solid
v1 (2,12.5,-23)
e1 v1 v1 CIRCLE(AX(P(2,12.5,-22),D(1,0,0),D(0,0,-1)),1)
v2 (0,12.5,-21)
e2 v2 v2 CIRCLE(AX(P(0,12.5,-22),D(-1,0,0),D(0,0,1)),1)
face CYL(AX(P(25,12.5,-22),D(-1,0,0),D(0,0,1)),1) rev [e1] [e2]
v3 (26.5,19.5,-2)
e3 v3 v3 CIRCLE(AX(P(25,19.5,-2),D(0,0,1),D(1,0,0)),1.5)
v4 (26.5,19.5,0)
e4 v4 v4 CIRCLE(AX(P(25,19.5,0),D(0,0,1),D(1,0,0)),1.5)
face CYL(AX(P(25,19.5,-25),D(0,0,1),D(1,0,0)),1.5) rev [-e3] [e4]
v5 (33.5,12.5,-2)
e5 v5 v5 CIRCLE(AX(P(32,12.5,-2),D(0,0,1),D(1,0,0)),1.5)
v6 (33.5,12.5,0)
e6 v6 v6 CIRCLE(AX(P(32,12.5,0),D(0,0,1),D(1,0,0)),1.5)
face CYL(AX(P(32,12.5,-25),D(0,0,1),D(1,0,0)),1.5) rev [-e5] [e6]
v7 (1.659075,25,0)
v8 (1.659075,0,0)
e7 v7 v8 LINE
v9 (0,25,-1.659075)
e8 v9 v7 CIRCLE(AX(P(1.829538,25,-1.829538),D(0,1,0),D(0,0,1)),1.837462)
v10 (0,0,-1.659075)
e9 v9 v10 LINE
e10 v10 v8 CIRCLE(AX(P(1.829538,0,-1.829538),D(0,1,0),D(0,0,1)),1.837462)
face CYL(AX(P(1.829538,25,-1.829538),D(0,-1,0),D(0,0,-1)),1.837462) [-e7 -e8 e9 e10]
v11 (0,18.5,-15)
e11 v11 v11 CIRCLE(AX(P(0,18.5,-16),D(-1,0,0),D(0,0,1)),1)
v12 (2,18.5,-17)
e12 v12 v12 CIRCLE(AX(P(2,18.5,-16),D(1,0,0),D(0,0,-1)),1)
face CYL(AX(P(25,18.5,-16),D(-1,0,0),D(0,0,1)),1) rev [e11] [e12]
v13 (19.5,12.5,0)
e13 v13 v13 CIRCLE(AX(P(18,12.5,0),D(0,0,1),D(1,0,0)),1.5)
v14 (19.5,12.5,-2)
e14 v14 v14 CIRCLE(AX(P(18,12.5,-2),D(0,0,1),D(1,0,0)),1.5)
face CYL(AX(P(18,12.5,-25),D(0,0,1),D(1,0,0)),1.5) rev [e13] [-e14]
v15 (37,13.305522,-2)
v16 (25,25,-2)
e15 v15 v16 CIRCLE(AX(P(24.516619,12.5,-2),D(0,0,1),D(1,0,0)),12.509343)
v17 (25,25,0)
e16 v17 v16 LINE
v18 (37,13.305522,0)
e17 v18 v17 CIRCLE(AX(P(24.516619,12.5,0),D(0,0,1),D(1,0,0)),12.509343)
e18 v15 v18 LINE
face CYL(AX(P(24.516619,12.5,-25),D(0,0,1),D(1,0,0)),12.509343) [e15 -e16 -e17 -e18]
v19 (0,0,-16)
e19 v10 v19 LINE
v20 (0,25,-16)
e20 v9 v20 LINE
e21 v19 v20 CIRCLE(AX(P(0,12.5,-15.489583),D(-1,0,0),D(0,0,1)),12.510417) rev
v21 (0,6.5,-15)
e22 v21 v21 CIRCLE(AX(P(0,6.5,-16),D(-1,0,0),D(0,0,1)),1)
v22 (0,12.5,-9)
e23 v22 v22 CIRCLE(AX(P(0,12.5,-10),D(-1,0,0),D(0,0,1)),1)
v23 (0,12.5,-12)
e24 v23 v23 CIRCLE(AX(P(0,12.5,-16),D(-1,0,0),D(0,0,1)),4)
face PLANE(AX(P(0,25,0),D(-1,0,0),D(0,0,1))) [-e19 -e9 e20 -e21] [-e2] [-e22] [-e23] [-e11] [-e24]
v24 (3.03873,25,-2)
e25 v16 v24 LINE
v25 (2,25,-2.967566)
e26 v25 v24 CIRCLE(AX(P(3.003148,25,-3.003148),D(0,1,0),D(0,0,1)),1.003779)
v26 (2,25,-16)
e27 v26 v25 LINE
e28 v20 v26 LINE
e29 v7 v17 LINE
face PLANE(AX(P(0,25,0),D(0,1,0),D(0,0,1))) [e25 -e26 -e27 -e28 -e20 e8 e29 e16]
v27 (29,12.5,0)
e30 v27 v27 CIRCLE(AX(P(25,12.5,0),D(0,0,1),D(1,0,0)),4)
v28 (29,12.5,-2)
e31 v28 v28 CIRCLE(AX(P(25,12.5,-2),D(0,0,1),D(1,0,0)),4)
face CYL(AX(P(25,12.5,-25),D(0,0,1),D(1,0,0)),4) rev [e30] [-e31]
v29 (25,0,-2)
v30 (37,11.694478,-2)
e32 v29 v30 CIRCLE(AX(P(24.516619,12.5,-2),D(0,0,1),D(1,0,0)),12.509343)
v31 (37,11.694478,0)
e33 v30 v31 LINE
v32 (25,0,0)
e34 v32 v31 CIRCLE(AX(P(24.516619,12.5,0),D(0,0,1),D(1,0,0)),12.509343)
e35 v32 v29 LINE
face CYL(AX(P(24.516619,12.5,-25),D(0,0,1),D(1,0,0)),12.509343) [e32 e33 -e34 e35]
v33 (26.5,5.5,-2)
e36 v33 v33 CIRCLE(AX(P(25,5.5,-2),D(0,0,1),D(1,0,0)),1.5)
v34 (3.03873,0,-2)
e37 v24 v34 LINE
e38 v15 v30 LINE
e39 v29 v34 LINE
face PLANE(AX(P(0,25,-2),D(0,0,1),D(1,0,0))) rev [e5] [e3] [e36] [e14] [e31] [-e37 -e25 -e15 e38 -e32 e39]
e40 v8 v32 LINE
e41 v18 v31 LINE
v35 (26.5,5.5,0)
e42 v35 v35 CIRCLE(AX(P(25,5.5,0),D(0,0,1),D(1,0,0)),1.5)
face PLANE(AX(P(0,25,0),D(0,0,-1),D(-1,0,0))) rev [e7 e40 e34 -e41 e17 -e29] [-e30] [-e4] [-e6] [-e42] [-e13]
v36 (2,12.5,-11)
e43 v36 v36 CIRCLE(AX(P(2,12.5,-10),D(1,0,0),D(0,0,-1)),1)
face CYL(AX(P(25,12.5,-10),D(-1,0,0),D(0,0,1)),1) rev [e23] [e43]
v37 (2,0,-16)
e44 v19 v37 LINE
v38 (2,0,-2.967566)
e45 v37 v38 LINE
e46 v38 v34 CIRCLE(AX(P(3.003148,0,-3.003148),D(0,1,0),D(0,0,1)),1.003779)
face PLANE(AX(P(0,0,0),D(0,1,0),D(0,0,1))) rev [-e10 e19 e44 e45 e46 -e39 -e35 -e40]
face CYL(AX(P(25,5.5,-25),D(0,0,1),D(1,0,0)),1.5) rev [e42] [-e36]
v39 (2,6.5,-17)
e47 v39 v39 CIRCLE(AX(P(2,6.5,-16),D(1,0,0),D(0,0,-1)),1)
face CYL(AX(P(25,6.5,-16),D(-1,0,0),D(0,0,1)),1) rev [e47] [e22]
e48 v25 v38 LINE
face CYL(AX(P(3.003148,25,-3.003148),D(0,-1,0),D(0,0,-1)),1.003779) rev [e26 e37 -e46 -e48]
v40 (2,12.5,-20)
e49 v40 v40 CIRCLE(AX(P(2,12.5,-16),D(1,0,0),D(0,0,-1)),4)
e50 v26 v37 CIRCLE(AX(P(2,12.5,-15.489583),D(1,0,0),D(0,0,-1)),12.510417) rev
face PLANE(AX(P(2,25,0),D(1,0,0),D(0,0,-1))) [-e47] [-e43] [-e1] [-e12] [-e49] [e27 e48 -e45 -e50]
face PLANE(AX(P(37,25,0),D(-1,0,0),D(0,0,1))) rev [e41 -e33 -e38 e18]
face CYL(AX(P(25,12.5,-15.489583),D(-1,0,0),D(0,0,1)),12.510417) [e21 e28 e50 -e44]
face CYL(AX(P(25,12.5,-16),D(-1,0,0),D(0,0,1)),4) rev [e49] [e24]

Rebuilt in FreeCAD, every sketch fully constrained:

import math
import FreeCAD as App
import Part
import Sketcher

V = App.Vector

doc = App.newDocument("Part")
params = doc.addObject("Spreadsheet::Sheet", "Params")
for row, (alias, value) in enumerate([
    ("sketch1_width", "2 mm"),
    ("pad1_length", "25 mm"),
    ("sketch2_height", "12 mm"),
    ("sketch2_width", "12.5 mm"),
    ("pocket1_length", "25 mm"),
    ("sketch3_width", "12 mm"),
    ("pocket2_length", "25 mm"),
    ("sketch4_diameter", "8 mm"),
    ("sketch4_diameter2", "3 mm"),
    ("pocket3_length", "25 mm"),
    ("sketch5_diameter", "8 mm"),
    ("sketch5_diameter2", "2 mm"),
    ("pocket4_length", "25 mm"),
], start=1):
    params.set(f"A{row}", alias)
    params.set(f"B{row}", "=" + value)
    params.setAlias(f"B{row}", alias)

body = doc.addObject("PartDesign::Body", "Body")

# Sketch on XZ plane
sketch1 = body.newObject("Sketcher::SketchObject", "Sketch")
sketch1.AttachmentSupport = (doc.getObject("XZ_Plane"), [""])
sketch1.MapMode = "FlatFace"
sketch1.addGeometry([
    Part.ArcOfCircle(Part.Circle(V(1.83, -1.83, 0), V(0, 0, 1), 1.84), math.radians(95), math.radians(175)),  # 0
    Part.LineSegment(V(1.66, 0, 0), V(37, 0, 0)),  # 1
    Part.LineSegment(V(37, 0, 0), V(37, -2, 0)),  # 2
    Part.LineSegment(V(37, -2, 0), V(3.04, -2, 0)),  # 3
    Part.ArcOfCircle(Part.Circle(V(3, -3, 0), V(0, 0, 1), 1), math.radians(87.97), math.radians(92.03)),  # 4
    Part.ArcOfCircle(Part.Circle(V(3, -3, 0), V(0, 0, 1), 1), math.radians(92), math.radians(178)),  # 5
    Part.LineSegment(V(2, -2.97, 0), V(2, -28, 0)),  # 6
    Part.LineSegment(V(2, -28, 0), V(0, -28, 0)),  # 7
    Part.LineSegment(V(0, -28, 0), V(0, -1.66, 0)),  # 8
], False)
sketch1.addConstraint([
    Sketcher.Constraint("Coincident", 0, 1, 1, 1),
    Sketcher.Constraint("Coincident", 1, 2, 2, 1),
    Sketcher.Constraint("Coincident", 2, 2, 3, 1),
    Sketcher.Constraint("Coincident", 3, 2, 4, 1),
    Sketcher.Constraint("Tangent", 4, 2, 5, 1),
    Sketcher.Constraint("Coincident", 5, 2, 6, 1),
    Sketcher.Constraint("Coincident", 6, 2, 7, 1),
    Sketcher.Constraint("Coincident", 7, 2, 8, 1),
    Sketcher.Constraint("Coincident", 8, 2, 0, 2),
    Sketcher.Constraint("Horizontal", 1),
    Sketcher.Constraint("Vertical", 2),
    Sketcher.Constraint("Horizontal", 3),
    Sketcher.Constraint("Vertical", 6),
    Sketcher.Constraint("Horizontal", 7),
    Sketcher.Constraint("Vertical", 8),
    Sketcher.Constraint("Equal", 4, 5),
    Sketcher.Constraint("PointOnObject", 0, 1, -1),
    Sketcher.Constraint("PointOnObject", 7, 2, -2),
    Sketcher.Constraint("Horizontal", 3, 2, 4, 2),
    Sketcher.Constraint("Equal", 7, 2),
    Sketcher.Constraint("DistanceX", 7, 2, 7, 1, 2.0),
    Sketcher.Constraint("DistanceX", -1, 1, 1, 2, 37.0),
    Sketcher.Constraint("DistanceY", 6, 2, -1, 1, 28.0),
    Sketcher.Constraint("Radius", 0, 1.837462),
    Sketcher.Constraint("Radius", 5, 1.003779),
    Sketcher.Constraint("DistanceX", 3, 2, 3, 1, 33.96127),
    Sketcher.Constraint("DistanceX", 1, 1, 1, 2, 35.340925),
    Sketcher.Constraint("DistanceY", 6, 2, 6, 1, 25.032434),
    Sketcher.Constraint("DistanceY", 8, 1, 8, 2, 26.340925),
])
sketch1.setExpression("Constraints[20]", "Params.sketch1_width")
pad1 = body.newObject("PartDesign::Pad", "Pad")
pad1.Profile = sketch1
pad1.setExpression("Length", "Params.pad1_length")
pad1.Reversed = True

# Sketch on YZ plane
sketch2 = body.newObject("Sketcher::SketchObject", "Sketch001")
sketch2.AttachmentSupport = (doc.getObject("YZ_Plane"), [""])
sketch2.MapMode = "FlatFace"
sketch2.addGeometry([
    Part.ArcOfCircle(Part.Circle(V(12, -15, 0), V(0, 0, 1), 13), math.radians(-90), math.radians(-2)),  # 0
    Part.LineSegment(V(25, -16, 0), V(25, -28, 0)),  # 1
    Part.LineSegment(V(25, -28, 0), V(12, -28, 0)),  # 2
    Part.ArcOfCircle(Part.Circle(V(12, -15, 0), V(0, 0, 1), 13), math.radians(-178), math.radians(-90)),  # 3
    Part.LineSegment(V(12, -28, 0), V(0, -28, 0)),  # 4
    Part.LineSegment(V(0, -28, 0), V(0, -16, 0)),  # 5
], False)
sketch2.addConstraint([
    Sketcher.Constraint("Coincident", 0, 2, 1, 1),
    Sketcher.Constraint("Coincident", 1, 2, 2, 1),
    Sketcher.Constraint("Tangent", 2, 2, 0, 1),
    Sketcher.Constraint("Tangent", 3, 2, 4, 1),
    Sketcher.Constraint("Coincident", 4, 2, 5, 1),
    Sketcher.Constraint("Coincident", 5, 2, 3, 1),
    Sketcher.Constraint("Vertical", 1),
    Sketcher.Constraint("Horizontal", 2),
    Sketcher.Constraint("Horizontal", 4),
    Sketcher.Constraint("Vertical", 5),
    Sketcher.Constraint("Coincident", 3, 3, 0, 3),
    Sketcher.Constraint("Equal", 0, 3),
    Sketcher.Constraint("PointOnObject", 4, 2, -2),
    Sketcher.Constraint("Horizontal", 0, 2, 5, 2),
    Sketcher.Constraint("DistanceY", 1, 2, 1, 1, 12.0),
    Sketcher.Constraint("DistanceX", 2, 2, 2, 1, 12.5),
    Sketcher.Constraint("DistanceY", 0, 2, -1, 1, 16.0),
])
sketch2.setExpression("Constraints[14]", "Params.sketch2_height")
sketch2.setExpression("Constraints[15]", "Params.sketch2_width")
pocket1 = body.newObject("PartDesign::Pocket", "Pocket")
pocket1.Profile = sketch2
pocket1.setExpression("Length", "Params.pocket1_length")
pocket1.Reversed = True

# Sketch on XY plane
sketch3 = body.newObject("Sketcher::SketchObject", "Sketch002")
sketch3.AttachmentSupport = (doc.getObject("XY_Plane"), [""])
sketch3.MapMode = "FlatFace"
sketch3.addGeometry([
    Part.LineSegment(V(37, 25, 0), V(25, 25, 0)),  # 0
    Part.ArcOfCircle(Part.Circle(V(25, 12, 0), V(0, 0, 1), 13), math.radians(4), math.radians(88)),  # 1
    Part.LineSegment(V(37, 13, 0), V(37, 25, 0)),  # 2
    Part.LineSegment(V(37, 0, 0), V(37, 12, 0)),  # 3
    Part.ArcOfCircle(Part.Circle(V(25, 12, 0), V(0, 0, 1), 13), math.radians(-88), math.radians(-4)),  # 4
    Part.LineSegment(V(25, 0, 0), V(37, 0, 0)),  # 5
], False)
sketch3.addConstraint([
    Sketcher.Constraint("Coincident", 0, 2, 1, 2),
    Sketcher.Constraint("Coincident", 1, 1, 2, 1),
    Sketcher.Constraint("Coincident", 2, 2, 0, 1),
    Sketcher.Constraint("Coincident", 3, 2, 4, 2),
    Sketcher.Constraint("Coincident", 4, 1, 5, 1),
    Sketcher.Constraint("Coincident", 5, 2, 3, 1),
    Sketcher.Constraint("Horizontal", 0),
    Sketcher.Constraint("Vertical", 2),
    Sketcher.Constraint("Vertical", 3),
    Sketcher.Constraint("Horizontal", 5),
    Sketcher.Constraint("Coincident", 4, 3, 1, 3),
    Sketcher.Constraint("Equal", 1, 4),
    Sketcher.Constraint("PointOnObject", 4, 1, -1),
    Sketcher.Constraint("Vertical", 2, 2, 3, 2),
    Sketcher.Constraint("Vertical", 0, 2, 4, 1),
    Sketcher.Constraint("DistanceX", 0, 2, 0, 1, 12.0),
    Sketcher.Constraint("DistanceX", -1, 1, 0, 2, 25.0),
    Sketcher.Constraint("DistanceY", -1, 1, 0, 2, 25.0),
    Sketcher.Constraint("DistanceY", 2, 1, 2, 2, 11.694478),
])
sketch3.setExpression("Constraints[15]", "Params.sketch3_width")
pocket2 = body.newObject("PartDesign::Pocket", "Pocket001")
pocket2.Profile = sketch3
pocket2.setExpression("Length", "Params.pocket2_length")

# Sketch on XY plane
sketch4 = body.newObject("Sketcher::SketchObject", "Sketch003")
sketch4.AttachmentSupport = (doc.getObject("XY_Plane"), [""])
sketch4.MapMode = "FlatFace"
sketch4.addGeometry([
    Part.Circle(V(25, 12.5, 0), V(0, 0, 1), 4),  # 0
    Part.Circle(V(25, 19.5, 0), V(0, 0, 1), 1.5),  # 1
    Part.Circle(V(32, 12.5, 0), V(0, 0, 1), 1.5),  # 2
    Part.Circle(V(25, 5.5, 0), V(0, 0, 1), 1.5),  # 3
    Part.Circle(V(18, 12.5, 0), V(0, 0, 1), 1.5),  # 4
], False)
sketch4.addConstraint([
    Sketcher.Constraint("Equal", 1, 2),
    Sketcher.Constraint("Equal", 2, 3),
    Sketcher.Constraint("Equal", 3, 4),
    Sketcher.Constraint("Horizontal", 0, 3, 2, 3),
    Sketcher.Constraint("Horizontal", 2, 3, 4, 3),
    Sketcher.Constraint("Vertical", 0, 3, 1, 3),
    Sketcher.Constraint("Vertical", 1, 3, 3, 3),
    Sketcher.Constraint("Diameter", 0, 8.0),
    Sketcher.Constraint("Diameter", 1, 3.0),
    Sketcher.Constraint("DistanceX", -1, 1, 0, 3, 25.0),
    Sketcher.Constraint("DistanceX", -1, 1, 2, 3, 32.0),
    Sketcher.Constraint("DistanceX", -1, 1, 4, 3, 18.0),
    Sketcher.Constraint("DistanceY", 0, 3, 1, 3, 7.0),
    Sketcher.Constraint("DistanceY", 3, 3, 0, 3, 7.0),
    Sketcher.Constraint("DistanceY", -1, 1, 0, 3, 12.5),
])
sketch4.setExpression("Constraints[7]", "Params.sketch4_diameter")
sketch4.setExpression("Constraints[8]", "Params.sketch4_diameter2")
pocket3 = body.newObject("PartDesign::Pocket", "Pocket002")
pocket3.Profile = sketch4
pocket3.setExpression("Length", "Params.pocket3_length")

# Sketch on YZ plane
sketch5 = body.newObject("Sketcher::SketchObject", "Sketch004")
sketch5.AttachmentSupport = (doc.getObject("YZ_Plane"), [""])
sketch5.MapMode = "FlatFace"
sketch5.addGeometry([
    Part.Circle(V(12.5, -16, 0), V(0, 0, 1), 4),  # 0
    Part.Circle(V(18.5, -16, 0), V(0, 0, 1), 1),  # 1
    Part.Circle(V(12.5, -10, 0), V(0, 0, 1), 1),  # 2
    Part.Circle(V(6.5, -16, 0), V(0, 0, 1), 1),  # 3
    Part.Circle(V(12.5, -22, 0), V(0, 0, 1), 1),  # 4
], False)
sketch5.addConstraint([
    Sketcher.Constraint("Equal", 1, 2),
    Sketcher.Constraint("Equal", 2, 3),
    Sketcher.Constraint("Equal", 3, 4),
    Sketcher.Constraint("Horizontal", 0, 3, 1, 3),
    Sketcher.Constraint("Horizontal", 1, 3, 3, 3),
    Sketcher.Constraint("Vertical", 0, 3, 2, 3),
    Sketcher.Constraint("Vertical", 2, 3, 4, 3),
    Sketcher.Constraint("Diameter", 0, 8.0),
    Sketcher.Constraint("Diameter", 1, 2.0),
    Sketcher.Constraint("DistanceY", 0, 3, -1, 1, 16.0),
    Sketcher.Constraint("DistanceY", 2, 3, -1, 1, 10.0),
    Sketcher.Constraint("DistanceY", 4, 3, -1, 1, 22.0),
    Sketcher.Constraint("DistanceX", 0, 3, 1, 3, 6.0),
    Sketcher.Constraint("DistanceX", 3, 3, 0, 3, 6.0),
    Sketcher.Constraint("DistanceX", -1, 1, 0, 3, 12.5),
])
sketch5.setExpression("Constraints[7]", "Params.sketch5_diameter")
sketch5.setExpression("Constraints[8]", "Params.sketch5_diameter2")
pocket4 = body.newObject("PartDesign::Pocket", "Pocket003")
pocket4.Profile = sketch5
pocket4.setExpression("Length", "Params.pocket4_length")
pocket4.Reversed = True

doc.recompute()
